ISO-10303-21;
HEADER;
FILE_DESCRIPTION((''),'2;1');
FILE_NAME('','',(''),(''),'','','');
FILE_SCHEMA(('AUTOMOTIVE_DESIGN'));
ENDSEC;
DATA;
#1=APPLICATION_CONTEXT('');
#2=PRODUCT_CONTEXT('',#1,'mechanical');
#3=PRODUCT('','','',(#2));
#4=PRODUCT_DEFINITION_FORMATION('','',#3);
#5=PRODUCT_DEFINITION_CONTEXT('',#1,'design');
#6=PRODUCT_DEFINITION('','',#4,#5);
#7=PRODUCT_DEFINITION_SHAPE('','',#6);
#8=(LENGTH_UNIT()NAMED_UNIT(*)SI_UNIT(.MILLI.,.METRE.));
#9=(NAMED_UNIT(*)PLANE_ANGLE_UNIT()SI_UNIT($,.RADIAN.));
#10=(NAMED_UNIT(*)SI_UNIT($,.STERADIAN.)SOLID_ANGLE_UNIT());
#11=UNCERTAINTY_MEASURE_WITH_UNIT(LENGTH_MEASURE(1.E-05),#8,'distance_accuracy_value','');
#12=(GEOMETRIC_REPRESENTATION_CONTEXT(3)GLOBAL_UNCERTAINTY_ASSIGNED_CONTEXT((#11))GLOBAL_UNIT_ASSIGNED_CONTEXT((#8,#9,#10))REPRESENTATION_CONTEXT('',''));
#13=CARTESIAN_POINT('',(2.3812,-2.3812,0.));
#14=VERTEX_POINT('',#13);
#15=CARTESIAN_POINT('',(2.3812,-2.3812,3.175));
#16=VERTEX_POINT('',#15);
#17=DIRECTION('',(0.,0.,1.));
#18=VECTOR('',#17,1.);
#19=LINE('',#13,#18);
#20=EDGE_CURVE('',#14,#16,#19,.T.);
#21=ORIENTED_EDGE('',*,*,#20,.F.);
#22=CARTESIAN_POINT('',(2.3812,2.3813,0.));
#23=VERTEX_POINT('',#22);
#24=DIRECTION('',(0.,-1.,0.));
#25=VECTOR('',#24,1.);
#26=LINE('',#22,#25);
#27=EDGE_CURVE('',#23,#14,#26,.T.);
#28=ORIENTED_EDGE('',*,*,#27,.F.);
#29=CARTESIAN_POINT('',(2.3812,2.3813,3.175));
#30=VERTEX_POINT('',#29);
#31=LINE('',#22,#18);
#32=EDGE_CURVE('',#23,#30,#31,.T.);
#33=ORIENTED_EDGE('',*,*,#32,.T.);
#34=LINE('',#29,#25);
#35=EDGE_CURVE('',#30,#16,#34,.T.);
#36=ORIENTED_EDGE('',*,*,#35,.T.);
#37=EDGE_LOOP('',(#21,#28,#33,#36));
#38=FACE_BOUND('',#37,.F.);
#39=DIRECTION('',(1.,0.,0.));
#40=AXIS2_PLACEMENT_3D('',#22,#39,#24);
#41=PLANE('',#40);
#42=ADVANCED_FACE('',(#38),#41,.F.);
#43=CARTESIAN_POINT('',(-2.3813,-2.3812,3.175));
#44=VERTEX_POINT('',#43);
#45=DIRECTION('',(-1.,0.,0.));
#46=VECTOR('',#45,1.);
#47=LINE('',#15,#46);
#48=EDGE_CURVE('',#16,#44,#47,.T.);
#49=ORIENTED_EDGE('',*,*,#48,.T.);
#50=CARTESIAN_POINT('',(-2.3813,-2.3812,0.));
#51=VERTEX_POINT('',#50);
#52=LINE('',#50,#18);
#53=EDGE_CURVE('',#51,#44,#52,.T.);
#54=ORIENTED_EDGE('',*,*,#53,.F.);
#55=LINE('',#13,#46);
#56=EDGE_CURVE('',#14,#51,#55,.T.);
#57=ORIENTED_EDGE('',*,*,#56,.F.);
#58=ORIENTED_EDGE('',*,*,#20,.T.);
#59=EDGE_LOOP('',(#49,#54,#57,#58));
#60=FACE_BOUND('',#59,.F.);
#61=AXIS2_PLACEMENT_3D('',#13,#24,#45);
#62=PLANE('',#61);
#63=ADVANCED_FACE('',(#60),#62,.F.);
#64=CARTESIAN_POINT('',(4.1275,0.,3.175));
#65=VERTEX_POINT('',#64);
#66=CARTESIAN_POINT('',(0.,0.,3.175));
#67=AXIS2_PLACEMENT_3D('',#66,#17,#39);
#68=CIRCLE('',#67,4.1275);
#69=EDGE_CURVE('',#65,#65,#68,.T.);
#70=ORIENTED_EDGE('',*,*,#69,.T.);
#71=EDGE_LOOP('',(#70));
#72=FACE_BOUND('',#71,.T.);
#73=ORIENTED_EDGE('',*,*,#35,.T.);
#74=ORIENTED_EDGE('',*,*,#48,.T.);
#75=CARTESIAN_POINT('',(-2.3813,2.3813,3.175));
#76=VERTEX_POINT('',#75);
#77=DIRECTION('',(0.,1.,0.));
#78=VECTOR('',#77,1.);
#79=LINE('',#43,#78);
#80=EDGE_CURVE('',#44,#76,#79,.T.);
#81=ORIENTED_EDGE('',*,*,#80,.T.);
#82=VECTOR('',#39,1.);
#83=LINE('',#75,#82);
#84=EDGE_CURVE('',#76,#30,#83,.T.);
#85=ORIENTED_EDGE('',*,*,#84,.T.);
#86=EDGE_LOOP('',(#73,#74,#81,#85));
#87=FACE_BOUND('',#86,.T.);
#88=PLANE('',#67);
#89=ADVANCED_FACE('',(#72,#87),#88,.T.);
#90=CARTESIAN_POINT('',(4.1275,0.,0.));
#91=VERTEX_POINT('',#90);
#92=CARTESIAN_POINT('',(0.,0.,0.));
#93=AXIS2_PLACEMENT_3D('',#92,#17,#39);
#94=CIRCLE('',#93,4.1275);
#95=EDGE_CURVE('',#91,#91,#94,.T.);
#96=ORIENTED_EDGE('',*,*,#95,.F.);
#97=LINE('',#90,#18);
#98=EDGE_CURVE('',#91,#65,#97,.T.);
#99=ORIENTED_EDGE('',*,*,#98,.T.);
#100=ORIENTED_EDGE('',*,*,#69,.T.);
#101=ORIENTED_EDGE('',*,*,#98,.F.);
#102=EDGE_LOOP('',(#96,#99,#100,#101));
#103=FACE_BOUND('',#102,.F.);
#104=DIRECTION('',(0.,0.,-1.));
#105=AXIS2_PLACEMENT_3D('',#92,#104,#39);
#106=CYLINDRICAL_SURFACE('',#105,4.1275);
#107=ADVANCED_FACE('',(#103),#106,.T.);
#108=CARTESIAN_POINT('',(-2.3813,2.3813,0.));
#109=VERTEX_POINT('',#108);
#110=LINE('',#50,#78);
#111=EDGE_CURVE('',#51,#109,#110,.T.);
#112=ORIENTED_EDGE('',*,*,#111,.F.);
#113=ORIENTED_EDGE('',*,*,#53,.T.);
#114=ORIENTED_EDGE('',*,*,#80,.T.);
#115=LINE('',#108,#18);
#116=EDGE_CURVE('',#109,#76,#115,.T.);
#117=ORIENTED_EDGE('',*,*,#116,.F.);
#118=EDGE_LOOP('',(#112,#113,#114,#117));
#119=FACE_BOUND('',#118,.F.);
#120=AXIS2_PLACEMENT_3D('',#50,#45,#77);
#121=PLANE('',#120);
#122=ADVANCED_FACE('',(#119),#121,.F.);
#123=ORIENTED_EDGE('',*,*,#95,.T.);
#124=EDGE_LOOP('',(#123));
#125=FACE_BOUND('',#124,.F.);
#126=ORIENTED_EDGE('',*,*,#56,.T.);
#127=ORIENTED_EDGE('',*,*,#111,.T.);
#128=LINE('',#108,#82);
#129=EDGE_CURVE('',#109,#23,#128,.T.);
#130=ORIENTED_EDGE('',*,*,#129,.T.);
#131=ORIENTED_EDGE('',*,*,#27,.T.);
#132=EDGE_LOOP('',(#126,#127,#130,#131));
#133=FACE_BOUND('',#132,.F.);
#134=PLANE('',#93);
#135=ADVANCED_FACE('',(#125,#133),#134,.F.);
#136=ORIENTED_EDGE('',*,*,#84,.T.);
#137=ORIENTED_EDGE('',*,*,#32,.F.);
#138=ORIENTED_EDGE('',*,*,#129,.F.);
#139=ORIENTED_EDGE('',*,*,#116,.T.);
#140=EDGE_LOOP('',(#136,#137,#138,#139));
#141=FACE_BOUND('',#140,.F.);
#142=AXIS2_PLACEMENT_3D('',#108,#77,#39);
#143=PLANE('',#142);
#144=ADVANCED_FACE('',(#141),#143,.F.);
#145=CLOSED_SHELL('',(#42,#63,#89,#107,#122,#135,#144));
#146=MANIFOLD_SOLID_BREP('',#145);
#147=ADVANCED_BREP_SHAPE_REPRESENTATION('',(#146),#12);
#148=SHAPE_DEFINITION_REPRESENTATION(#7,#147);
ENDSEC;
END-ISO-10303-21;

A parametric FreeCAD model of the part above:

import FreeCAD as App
import Part
import Sketcher
from FreeCAD import Vector
Q = App.Units.Quantity

doc = App.newDocument("Part")
body = doc.addObject("PartDesign::Body", "Body")

# Sketch on XY plane
sketch1 = body.newObject("Sketcher::SketchObject", "Sketch")
sketch1.AttachmentSupport = (doc.getObject("XY_Plane"), [""])
sketch1.MapMode = "FlatFace"
sketch1.addGeometry([
    Part.Circle(Vector(0, 0, 0), Vector(0, 0, 1), 4.1275),  # 0
    Part.LineSegment(Vector(-2.3813, -2.3812, 0), Vector(-2.3813, 2.3813, 0)),  # 1
    Part.LineSegment(Vector(-2.3813, 2.3813, 0), Vector(2.3812, 2.3813, 0)),  # 2
    Part.LineSegment(Vector(2.3812, 2.3813, 0), Vector(2.3812, -2.3812, 0)),  # 3
    Part.LineSegment(Vector(2.3812, -2.3812, 0), Vector(-2.3813, -2.3812, 0)),  # 4
], False)
sketch1.addConstraint([
    Sketcher.Constraint("Coincident", 1, 2, 2, 1),
    Sketcher.Constraint("Coincident", 2, 2, 3, 1),
    Sketcher.Constraint("Coincident", 3, 2, 4, 1),
    Sketcher.Constraint("Coincident", 4, 2, 1, 1),
    Sketcher.Constraint("Vertical", 1),
    Sketcher.Constraint("Horizontal", 2),
    Sketcher.Constraint("Vertical", 3),
    Sketcher.Constraint("Horizontal", 4),
    Sketcher.Constraint("Coincident", 0, 3, -1, 1),
    Sketcher.Constraint("Symmetric", 1, 2, 3, 2, -1, 1),
    Sketcher.Constraint("Equal", 4, 1),
    Sketcher.Constraint("Diameter", 0, Q("0.325 in")),
    Sketcher.Constraint("DistanceX", 2, 1, 2, 2, Q("0.1875 in")),
])
pad1 = body.newObject("PartDesign::Pad", "Pad")
pad1.Profile = sketch1
pad1.Length = Q("0.125 in")

doc.recompute()
